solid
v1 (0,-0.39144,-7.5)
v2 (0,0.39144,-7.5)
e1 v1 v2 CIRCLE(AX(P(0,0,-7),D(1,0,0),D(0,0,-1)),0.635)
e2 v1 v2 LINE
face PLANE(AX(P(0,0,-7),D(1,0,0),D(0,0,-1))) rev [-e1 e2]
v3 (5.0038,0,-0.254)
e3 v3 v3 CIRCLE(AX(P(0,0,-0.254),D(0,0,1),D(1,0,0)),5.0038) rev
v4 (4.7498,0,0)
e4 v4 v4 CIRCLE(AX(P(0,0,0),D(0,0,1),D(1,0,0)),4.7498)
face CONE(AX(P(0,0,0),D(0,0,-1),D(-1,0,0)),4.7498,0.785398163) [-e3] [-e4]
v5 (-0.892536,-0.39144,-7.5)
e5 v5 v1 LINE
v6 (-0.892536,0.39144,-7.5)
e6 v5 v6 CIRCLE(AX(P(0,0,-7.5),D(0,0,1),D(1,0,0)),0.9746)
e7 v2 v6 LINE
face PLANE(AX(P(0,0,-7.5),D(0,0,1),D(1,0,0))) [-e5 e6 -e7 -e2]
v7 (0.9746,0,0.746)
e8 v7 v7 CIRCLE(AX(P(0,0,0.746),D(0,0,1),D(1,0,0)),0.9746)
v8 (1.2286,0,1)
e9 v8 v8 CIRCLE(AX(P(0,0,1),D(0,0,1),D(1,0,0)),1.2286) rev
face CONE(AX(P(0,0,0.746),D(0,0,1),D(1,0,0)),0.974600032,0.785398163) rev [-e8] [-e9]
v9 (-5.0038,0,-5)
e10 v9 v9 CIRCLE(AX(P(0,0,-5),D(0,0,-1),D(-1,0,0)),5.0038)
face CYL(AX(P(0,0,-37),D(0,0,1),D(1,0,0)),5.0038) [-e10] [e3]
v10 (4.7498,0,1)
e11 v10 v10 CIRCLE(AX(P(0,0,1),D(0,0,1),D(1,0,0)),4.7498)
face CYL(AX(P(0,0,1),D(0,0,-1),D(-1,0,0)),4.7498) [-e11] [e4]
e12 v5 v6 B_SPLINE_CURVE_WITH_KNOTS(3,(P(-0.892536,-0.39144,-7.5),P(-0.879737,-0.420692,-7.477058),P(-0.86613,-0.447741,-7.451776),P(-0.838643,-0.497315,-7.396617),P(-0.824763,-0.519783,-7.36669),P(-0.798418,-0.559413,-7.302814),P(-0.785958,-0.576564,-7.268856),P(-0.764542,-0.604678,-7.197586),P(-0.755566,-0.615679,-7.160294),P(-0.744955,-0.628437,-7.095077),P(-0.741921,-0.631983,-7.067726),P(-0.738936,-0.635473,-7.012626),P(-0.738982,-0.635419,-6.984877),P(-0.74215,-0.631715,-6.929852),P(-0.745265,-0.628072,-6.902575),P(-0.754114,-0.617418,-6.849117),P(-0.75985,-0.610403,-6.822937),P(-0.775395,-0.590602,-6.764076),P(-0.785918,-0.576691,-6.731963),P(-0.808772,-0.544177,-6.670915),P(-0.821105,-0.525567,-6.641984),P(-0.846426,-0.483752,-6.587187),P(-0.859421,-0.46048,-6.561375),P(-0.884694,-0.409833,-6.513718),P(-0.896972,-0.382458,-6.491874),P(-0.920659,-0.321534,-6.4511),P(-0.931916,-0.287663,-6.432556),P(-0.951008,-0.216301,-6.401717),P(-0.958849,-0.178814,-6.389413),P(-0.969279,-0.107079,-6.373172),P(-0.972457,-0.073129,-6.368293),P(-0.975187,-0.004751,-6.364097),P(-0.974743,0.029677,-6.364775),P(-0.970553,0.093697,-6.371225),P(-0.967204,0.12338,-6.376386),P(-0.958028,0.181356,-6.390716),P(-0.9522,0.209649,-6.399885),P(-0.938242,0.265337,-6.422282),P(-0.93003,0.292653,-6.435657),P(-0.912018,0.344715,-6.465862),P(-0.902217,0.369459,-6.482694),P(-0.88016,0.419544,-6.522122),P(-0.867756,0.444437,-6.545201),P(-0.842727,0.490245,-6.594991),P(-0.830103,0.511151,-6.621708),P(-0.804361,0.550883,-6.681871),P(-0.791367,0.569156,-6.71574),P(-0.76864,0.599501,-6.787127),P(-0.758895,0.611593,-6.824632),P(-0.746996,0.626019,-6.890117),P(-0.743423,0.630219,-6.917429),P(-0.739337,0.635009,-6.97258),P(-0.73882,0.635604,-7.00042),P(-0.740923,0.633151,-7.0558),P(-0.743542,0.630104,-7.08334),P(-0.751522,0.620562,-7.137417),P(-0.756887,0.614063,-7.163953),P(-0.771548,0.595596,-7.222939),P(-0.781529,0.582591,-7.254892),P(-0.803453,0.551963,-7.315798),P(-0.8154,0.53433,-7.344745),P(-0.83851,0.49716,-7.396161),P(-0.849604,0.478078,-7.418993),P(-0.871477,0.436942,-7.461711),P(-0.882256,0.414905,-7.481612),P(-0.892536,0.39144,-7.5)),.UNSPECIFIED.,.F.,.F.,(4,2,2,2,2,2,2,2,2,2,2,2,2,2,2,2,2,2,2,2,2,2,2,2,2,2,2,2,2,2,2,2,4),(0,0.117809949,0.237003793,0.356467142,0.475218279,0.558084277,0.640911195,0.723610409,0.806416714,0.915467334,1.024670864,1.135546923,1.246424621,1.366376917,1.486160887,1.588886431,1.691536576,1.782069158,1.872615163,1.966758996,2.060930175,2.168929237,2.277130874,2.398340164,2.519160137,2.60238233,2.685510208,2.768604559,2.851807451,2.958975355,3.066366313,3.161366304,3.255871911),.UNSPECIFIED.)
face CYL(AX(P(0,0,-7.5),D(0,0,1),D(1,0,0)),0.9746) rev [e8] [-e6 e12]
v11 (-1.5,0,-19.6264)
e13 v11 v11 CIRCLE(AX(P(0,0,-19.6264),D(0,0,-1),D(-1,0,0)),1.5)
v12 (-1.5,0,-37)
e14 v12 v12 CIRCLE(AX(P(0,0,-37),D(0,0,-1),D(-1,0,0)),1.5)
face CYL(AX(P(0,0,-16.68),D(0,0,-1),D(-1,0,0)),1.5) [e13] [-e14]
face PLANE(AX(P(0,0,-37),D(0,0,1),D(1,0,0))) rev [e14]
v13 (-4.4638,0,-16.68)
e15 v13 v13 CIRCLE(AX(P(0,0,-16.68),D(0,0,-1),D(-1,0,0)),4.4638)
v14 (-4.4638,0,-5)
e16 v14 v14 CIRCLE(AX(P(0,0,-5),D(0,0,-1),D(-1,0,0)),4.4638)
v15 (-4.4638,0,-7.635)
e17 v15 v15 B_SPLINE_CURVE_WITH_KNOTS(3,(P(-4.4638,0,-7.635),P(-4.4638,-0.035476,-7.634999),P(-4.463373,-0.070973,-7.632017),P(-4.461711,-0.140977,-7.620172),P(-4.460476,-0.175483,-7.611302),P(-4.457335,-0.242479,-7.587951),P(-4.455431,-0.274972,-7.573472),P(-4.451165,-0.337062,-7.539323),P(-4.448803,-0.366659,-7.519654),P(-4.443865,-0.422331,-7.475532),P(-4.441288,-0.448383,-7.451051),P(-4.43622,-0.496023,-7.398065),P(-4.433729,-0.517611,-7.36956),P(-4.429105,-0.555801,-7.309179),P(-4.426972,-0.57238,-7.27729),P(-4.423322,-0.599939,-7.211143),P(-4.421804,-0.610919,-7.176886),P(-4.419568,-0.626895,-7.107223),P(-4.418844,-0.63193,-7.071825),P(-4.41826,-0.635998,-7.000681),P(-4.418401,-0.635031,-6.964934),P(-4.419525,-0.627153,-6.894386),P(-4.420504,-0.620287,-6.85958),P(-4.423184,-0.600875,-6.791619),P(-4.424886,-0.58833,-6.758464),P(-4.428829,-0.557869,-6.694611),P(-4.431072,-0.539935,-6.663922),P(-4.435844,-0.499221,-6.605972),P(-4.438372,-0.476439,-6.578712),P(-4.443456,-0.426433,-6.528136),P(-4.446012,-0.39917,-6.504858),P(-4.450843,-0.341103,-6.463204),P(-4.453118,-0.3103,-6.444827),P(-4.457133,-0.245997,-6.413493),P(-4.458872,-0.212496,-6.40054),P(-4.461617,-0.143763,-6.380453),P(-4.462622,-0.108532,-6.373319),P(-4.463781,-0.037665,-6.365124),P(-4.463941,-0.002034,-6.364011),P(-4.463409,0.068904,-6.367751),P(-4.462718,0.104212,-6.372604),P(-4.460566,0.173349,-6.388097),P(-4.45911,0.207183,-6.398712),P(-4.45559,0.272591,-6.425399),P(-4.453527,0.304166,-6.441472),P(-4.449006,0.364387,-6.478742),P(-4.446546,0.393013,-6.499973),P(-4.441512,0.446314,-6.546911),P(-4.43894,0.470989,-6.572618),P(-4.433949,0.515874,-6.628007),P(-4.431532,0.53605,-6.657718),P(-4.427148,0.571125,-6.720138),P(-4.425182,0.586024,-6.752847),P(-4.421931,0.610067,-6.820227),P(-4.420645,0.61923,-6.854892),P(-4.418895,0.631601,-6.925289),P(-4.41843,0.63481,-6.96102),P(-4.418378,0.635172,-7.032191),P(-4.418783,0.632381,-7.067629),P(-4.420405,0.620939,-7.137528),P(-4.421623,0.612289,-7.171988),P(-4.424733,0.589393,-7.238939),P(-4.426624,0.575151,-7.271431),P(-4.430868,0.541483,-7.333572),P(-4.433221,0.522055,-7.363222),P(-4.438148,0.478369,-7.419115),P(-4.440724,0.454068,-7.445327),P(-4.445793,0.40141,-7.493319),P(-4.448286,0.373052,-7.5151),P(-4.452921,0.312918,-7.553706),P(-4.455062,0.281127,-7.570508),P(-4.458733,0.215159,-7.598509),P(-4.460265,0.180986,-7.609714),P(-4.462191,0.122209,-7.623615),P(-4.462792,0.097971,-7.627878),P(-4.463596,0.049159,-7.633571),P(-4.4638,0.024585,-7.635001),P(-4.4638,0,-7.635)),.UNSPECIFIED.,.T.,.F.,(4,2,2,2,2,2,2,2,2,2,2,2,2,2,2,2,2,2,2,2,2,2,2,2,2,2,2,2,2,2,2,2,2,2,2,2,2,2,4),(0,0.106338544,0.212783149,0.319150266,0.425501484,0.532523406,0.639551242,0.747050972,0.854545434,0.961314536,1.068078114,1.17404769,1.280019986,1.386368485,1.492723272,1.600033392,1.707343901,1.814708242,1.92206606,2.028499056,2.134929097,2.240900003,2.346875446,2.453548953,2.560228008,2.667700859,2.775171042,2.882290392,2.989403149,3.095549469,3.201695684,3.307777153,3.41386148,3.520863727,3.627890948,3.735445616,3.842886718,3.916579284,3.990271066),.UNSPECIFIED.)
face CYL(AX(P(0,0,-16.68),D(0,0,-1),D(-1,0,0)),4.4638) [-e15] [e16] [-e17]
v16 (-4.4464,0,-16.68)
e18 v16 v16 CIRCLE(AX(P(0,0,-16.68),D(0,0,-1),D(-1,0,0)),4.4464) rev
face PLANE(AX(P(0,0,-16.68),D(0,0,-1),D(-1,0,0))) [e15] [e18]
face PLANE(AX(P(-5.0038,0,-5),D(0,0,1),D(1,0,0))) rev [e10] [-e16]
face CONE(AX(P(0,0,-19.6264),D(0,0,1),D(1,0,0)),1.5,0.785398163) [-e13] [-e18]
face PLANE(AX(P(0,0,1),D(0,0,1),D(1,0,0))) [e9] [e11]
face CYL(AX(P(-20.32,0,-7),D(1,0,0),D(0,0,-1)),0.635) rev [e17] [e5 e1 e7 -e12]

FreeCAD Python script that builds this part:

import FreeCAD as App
import Part
import Sketcher
Q = App.Units.Quantity


def edges_at(feature, points):
    """Names of the edges that pass closest to the given points."""
    edges = feature.Shape.Edges
    near = lambda p: min(range(len(edges)), key=lambda i: edges[i].distToShape(Part.Vertex(*p))[0])
    return sorted({f"Edge{near(p) + 1}" for p in points})


def add_polygon(sketch, points):
    """Adds a closed chain of lines whose ends are joined by coincident constraints."""
    first, n = sketch.GeometryCount, len(points)
    for a, b in zip(points, points[1:] + points[:1]):
        sketch.addGeometry(Part.LineSegment(App.Vector(*a, 0), App.Vector(*b, 0)), False)
    for i in range(n):
        sketch.addConstraint(Sketcher.Constraint("Coincident", first + i, 2, first + (i + 1) % n, 1))

doc = App.newDocument("Part")
params = doc.addObject("Spreadsheet::Sheet", "Params")
for row, (alias, value) in enumerate([
    ("sketch1_diameter", "0.394 in"),
    ("pad1_length", "37 mm"),
    ("pocket1_length", "7.5 mm"),
    ("pocket2_length", "0.8 in"),
    ("sketch4_diameter", "0.05 in"),
    ("pocket3_length", "0.8 in"),
    ("chamfer_size", "0.01 in"),
    ("groove_angle", "360 deg"),
    ("chamfer2_size", "0.116 in"),
    ("sketch6_diameter", "0.374 in"),
    ("pad2_length", "1 mm"),
    ("chamfer3_size", "0.01 in"),
], start=1):
    params.set(f"A{row}", alias)
    params.set(f"B{row}", "=" + value)
    params.setAlias(f"B{row}", alias)

body = doc.addObject("PartDesign::Body", "Body")

sketch1 = body.newObject("Sketcher::SketchObject", "Sketch")
sketch1.AttachmentSupport = (doc.getObject("XY_Plane"), [""])
sketch1.MapMode = "FlatFace"
sketch1.addGeometry(Part.Circle(App.Vector(0, 0, 0), App.Vector(0, 0, 1), 5), False)
sketch1.addConstraint(Sketcher.Constraint("Coincident", 0, 3, -1, 1))
sketch1.addConstraint(Sketcher.Constraint("Diameter", 0, Q("0.394 in")))
sketch1.setExpression("Constraints[1]", "Params.sketch1_diameter")
pad1 = body.newObject("PartDesign::Pad", "Pad")
pad1.Profile = sketch1
pad1.setExpression("Length", "Params.pad1_length")
pad1.Reversed = True

sketch2 = body.newObject("Sketcher::SketchObject", "Sketch001")
sketch2.AttachmentSupport = (doc.getObject("XY_Plane"), [""])
sketch2.MapMode = "FlatFace"
sketch2.addGeometry(Part.Circle(App.Vector(0, 0, 0), App.Vector(0, 0, 1), 1), False)
sketch2.addConstraint(Sketcher.Constraint("Coincident", 0, 3, -1, 1))
sketch2.addConstraint(Sketcher.Constraint("Diameter", 0, Q("1.9492 mm")))
pocket1 = body.newObject("PartDesign::Pocket", "Pocket")
pocket1.Profile = sketch2
pocket1.setExpression("Length", "Params.pocket1_length")

sketch3 = body.newObject("Sketcher::SketchObject", "Sketch002")
sketch3.AttachmentSupport = (doc.getObject("XY_Plane"), [""])
sketch3.MapMode = "FlatFace"
sketch3.AttachmentOffset = App.Placement(App.Vector(0, 0, -37), App.Rotation())
add_polygon(sketch3, [(10, 10), (10, -10), (-10, -10), (-10, 10)])
sketch3.addGeometry(Part.Circle(App.Vector(0, 0, 0), App.Vector(0, 0, 1), 1.5), False)
sketch3.addConstraint(Sketcher.Constraint("Vertical", 0))
sketch3.addConstraint(Sketcher.Constraint("Horizontal", 1))
sketch3.addConstraint(Sketcher.Constraint("Vertical", 2))
sketch3.addConstraint(Sketcher.Constraint("Horizontal", 3))
sketch3.addConstraint(Sketcher.Constraint("Coincident", 4, 3, -1, 1))
sketch3.addConstraint(Sketcher.Constraint("Symmetric", 0, 2, 2, 2, -1, 1))
sketch3.addConstraint(Sketcher.Constraint("Equal", 3, 0))
sketch3.addConstraint(Sketcher.Constraint("Diameter", 4, Q("3 mm")))
sketch3.addConstraint(Sketcher.Constraint("DistanceX", 1, 2, 1, 1, Q("19.93 mm")))
pocket2 = body.newObject("PartDesign::Pocket", "Pocket001")
pocket2.Profile = sketch3
pocket2.setExpression("Length", "Params.pocket2_length")
pocket2.Reversed = True

sketch4 = body.newObject("Sketcher::SketchObject", "Sketch003")
sketch4.AttachmentSupport = (doc.getObject("YZ_Plane"), [""])
sketch4.MapMode = "FlatFace"
sketch4.addGeometry(Part.Circle(App.Vector(0, -7, 0), App.Vector(0, 0, 1), 0.6), False)
sketch4.addConstraint(Sketcher.Constraint("PointOnObject", 0, 3, -2))
sketch4.addConstraint(Sketcher.Constraint("Diameter", 0, Q("0.05 in")))
sketch4.addConstraint(Sketcher.Constraint("DistanceY", 0, 3, -1, 1, Q("7 mm")))
sketch4.setExpression("Constraints[1]", "Params.sketch4_diameter")
pocket3 = body.newObject("PartDesign::Pocket", "Pocket002")
pocket3.Profile = sketch4
pocket3.setExpression("Length", "Params.pocket3_length")
doc.recompute()

chamfer = body.newObject("PartDesign::Chamfer", "Chamfer")
chamfer.Base = (pocket3, edges_at(pocket3, [(-5.004, 0, 0)]))
chamfer.setExpression("Size", "Params.chamfer_size")

sketch5 = body.newObject("Sketcher::SketchObject", "Sketch004")
sketch5.AttachmentSupport = (doc.getObject("XZ_Plane"), [""])
sketch5.MapMode = "FlatFace"
add_polygon(sketch5, [(-5, -16.7), (-5, -5), (-4.5, -5), (-4.5, -16.7)])
sketch5.addConstraint(Sketcher.Constraint("Vertical", 0))
sketch5.addConstraint(Sketcher.Constraint("Horizontal", 1))
sketch5.addConstraint(Sketcher.Constraint("Vertical", 2))
sketch5.addConstraint(Sketcher.Constraint("Horizontal", 3))
sketch5.addConstraint(Sketcher.Constraint("DistanceX", 0, 2, -1, 1, Q("0.197 in")))
sketch5.addConstraint(Sketcher.Constraint("DistanceX", 1, 1, 1, 2, Q("0.54 mm")))
sketch5.addConstraint(Sketcher.Constraint("DistanceY", 0, 1, 0, 2, Q("11.68 mm")))
sketch5.addConstraint(Sketcher.Constraint("DistanceY", 0, 2, -1, 1, Q("5 mm")))
groove = body.newObject("PartDesign::Groove", "Groove")
groove.Profile = sketch5
groove.ReferenceAxis = (sketch5, ["V_Axis"])
groove.setExpression("Angle", "Params.groove_angle")
doc.recompute()

chamfer2 = body.newObject("PartDesign::Chamfer", "Chamfer001")
chamfer2.Base = (groove, edges_at(groove, [(1.5, 0, -16.68)]))
chamfer2.setExpression("Size", "Params.chamfer2_size")

sketch6 = body.newObject("Sketcher::SketchObject", "Sketch005")
sketch6.AttachmentSupport = (doc.getObject("XY_Plane"), [""])
sketch6.MapMode = "FlatFace"
sketch6.addGeometry(Part.Circle(App.Vector(0, 0, 0), App.Vector(0, 0, 1), 4.7), False)
sketch6.addGeometry(Part.Circle(App.Vector(0, 0, 0), App.Vector(0, 0, 1), 1), False)
sketch6.addConstraint(Sketcher.Constraint("Coincident", 0, 3, -1, 1))
sketch6.addConstraint(Sketcher.Constraint("Coincident", 1, 3, -1, 1))
sketch6.addConstraint(Sketcher.Constraint("Diameter", 0, Q("0.374 in")))
sketch6.addConstraint(Sketcher.Constraint("Diameter", 1, Q("1.9492 mm")))
sketch6.setExpression("Constraints[2]", "Params.sketch6_diameter")
pad2 = body.newObject("PartDesign::Pad", "Pad001")
pad2.Profile = sketch6
pad2.setExpression("Length", "Params.pad2_length")
doc.recompute()

chamfer3 = body.newObject("PartDesign::Chamfer", "Chamfer002")
chamfer3.Base = (pad2, edges_at(pad2, [(-0.975, 0, 1)]))
chamfer3.setExpression("Size", "Params.chamfer3_size")

doc.recompute()
